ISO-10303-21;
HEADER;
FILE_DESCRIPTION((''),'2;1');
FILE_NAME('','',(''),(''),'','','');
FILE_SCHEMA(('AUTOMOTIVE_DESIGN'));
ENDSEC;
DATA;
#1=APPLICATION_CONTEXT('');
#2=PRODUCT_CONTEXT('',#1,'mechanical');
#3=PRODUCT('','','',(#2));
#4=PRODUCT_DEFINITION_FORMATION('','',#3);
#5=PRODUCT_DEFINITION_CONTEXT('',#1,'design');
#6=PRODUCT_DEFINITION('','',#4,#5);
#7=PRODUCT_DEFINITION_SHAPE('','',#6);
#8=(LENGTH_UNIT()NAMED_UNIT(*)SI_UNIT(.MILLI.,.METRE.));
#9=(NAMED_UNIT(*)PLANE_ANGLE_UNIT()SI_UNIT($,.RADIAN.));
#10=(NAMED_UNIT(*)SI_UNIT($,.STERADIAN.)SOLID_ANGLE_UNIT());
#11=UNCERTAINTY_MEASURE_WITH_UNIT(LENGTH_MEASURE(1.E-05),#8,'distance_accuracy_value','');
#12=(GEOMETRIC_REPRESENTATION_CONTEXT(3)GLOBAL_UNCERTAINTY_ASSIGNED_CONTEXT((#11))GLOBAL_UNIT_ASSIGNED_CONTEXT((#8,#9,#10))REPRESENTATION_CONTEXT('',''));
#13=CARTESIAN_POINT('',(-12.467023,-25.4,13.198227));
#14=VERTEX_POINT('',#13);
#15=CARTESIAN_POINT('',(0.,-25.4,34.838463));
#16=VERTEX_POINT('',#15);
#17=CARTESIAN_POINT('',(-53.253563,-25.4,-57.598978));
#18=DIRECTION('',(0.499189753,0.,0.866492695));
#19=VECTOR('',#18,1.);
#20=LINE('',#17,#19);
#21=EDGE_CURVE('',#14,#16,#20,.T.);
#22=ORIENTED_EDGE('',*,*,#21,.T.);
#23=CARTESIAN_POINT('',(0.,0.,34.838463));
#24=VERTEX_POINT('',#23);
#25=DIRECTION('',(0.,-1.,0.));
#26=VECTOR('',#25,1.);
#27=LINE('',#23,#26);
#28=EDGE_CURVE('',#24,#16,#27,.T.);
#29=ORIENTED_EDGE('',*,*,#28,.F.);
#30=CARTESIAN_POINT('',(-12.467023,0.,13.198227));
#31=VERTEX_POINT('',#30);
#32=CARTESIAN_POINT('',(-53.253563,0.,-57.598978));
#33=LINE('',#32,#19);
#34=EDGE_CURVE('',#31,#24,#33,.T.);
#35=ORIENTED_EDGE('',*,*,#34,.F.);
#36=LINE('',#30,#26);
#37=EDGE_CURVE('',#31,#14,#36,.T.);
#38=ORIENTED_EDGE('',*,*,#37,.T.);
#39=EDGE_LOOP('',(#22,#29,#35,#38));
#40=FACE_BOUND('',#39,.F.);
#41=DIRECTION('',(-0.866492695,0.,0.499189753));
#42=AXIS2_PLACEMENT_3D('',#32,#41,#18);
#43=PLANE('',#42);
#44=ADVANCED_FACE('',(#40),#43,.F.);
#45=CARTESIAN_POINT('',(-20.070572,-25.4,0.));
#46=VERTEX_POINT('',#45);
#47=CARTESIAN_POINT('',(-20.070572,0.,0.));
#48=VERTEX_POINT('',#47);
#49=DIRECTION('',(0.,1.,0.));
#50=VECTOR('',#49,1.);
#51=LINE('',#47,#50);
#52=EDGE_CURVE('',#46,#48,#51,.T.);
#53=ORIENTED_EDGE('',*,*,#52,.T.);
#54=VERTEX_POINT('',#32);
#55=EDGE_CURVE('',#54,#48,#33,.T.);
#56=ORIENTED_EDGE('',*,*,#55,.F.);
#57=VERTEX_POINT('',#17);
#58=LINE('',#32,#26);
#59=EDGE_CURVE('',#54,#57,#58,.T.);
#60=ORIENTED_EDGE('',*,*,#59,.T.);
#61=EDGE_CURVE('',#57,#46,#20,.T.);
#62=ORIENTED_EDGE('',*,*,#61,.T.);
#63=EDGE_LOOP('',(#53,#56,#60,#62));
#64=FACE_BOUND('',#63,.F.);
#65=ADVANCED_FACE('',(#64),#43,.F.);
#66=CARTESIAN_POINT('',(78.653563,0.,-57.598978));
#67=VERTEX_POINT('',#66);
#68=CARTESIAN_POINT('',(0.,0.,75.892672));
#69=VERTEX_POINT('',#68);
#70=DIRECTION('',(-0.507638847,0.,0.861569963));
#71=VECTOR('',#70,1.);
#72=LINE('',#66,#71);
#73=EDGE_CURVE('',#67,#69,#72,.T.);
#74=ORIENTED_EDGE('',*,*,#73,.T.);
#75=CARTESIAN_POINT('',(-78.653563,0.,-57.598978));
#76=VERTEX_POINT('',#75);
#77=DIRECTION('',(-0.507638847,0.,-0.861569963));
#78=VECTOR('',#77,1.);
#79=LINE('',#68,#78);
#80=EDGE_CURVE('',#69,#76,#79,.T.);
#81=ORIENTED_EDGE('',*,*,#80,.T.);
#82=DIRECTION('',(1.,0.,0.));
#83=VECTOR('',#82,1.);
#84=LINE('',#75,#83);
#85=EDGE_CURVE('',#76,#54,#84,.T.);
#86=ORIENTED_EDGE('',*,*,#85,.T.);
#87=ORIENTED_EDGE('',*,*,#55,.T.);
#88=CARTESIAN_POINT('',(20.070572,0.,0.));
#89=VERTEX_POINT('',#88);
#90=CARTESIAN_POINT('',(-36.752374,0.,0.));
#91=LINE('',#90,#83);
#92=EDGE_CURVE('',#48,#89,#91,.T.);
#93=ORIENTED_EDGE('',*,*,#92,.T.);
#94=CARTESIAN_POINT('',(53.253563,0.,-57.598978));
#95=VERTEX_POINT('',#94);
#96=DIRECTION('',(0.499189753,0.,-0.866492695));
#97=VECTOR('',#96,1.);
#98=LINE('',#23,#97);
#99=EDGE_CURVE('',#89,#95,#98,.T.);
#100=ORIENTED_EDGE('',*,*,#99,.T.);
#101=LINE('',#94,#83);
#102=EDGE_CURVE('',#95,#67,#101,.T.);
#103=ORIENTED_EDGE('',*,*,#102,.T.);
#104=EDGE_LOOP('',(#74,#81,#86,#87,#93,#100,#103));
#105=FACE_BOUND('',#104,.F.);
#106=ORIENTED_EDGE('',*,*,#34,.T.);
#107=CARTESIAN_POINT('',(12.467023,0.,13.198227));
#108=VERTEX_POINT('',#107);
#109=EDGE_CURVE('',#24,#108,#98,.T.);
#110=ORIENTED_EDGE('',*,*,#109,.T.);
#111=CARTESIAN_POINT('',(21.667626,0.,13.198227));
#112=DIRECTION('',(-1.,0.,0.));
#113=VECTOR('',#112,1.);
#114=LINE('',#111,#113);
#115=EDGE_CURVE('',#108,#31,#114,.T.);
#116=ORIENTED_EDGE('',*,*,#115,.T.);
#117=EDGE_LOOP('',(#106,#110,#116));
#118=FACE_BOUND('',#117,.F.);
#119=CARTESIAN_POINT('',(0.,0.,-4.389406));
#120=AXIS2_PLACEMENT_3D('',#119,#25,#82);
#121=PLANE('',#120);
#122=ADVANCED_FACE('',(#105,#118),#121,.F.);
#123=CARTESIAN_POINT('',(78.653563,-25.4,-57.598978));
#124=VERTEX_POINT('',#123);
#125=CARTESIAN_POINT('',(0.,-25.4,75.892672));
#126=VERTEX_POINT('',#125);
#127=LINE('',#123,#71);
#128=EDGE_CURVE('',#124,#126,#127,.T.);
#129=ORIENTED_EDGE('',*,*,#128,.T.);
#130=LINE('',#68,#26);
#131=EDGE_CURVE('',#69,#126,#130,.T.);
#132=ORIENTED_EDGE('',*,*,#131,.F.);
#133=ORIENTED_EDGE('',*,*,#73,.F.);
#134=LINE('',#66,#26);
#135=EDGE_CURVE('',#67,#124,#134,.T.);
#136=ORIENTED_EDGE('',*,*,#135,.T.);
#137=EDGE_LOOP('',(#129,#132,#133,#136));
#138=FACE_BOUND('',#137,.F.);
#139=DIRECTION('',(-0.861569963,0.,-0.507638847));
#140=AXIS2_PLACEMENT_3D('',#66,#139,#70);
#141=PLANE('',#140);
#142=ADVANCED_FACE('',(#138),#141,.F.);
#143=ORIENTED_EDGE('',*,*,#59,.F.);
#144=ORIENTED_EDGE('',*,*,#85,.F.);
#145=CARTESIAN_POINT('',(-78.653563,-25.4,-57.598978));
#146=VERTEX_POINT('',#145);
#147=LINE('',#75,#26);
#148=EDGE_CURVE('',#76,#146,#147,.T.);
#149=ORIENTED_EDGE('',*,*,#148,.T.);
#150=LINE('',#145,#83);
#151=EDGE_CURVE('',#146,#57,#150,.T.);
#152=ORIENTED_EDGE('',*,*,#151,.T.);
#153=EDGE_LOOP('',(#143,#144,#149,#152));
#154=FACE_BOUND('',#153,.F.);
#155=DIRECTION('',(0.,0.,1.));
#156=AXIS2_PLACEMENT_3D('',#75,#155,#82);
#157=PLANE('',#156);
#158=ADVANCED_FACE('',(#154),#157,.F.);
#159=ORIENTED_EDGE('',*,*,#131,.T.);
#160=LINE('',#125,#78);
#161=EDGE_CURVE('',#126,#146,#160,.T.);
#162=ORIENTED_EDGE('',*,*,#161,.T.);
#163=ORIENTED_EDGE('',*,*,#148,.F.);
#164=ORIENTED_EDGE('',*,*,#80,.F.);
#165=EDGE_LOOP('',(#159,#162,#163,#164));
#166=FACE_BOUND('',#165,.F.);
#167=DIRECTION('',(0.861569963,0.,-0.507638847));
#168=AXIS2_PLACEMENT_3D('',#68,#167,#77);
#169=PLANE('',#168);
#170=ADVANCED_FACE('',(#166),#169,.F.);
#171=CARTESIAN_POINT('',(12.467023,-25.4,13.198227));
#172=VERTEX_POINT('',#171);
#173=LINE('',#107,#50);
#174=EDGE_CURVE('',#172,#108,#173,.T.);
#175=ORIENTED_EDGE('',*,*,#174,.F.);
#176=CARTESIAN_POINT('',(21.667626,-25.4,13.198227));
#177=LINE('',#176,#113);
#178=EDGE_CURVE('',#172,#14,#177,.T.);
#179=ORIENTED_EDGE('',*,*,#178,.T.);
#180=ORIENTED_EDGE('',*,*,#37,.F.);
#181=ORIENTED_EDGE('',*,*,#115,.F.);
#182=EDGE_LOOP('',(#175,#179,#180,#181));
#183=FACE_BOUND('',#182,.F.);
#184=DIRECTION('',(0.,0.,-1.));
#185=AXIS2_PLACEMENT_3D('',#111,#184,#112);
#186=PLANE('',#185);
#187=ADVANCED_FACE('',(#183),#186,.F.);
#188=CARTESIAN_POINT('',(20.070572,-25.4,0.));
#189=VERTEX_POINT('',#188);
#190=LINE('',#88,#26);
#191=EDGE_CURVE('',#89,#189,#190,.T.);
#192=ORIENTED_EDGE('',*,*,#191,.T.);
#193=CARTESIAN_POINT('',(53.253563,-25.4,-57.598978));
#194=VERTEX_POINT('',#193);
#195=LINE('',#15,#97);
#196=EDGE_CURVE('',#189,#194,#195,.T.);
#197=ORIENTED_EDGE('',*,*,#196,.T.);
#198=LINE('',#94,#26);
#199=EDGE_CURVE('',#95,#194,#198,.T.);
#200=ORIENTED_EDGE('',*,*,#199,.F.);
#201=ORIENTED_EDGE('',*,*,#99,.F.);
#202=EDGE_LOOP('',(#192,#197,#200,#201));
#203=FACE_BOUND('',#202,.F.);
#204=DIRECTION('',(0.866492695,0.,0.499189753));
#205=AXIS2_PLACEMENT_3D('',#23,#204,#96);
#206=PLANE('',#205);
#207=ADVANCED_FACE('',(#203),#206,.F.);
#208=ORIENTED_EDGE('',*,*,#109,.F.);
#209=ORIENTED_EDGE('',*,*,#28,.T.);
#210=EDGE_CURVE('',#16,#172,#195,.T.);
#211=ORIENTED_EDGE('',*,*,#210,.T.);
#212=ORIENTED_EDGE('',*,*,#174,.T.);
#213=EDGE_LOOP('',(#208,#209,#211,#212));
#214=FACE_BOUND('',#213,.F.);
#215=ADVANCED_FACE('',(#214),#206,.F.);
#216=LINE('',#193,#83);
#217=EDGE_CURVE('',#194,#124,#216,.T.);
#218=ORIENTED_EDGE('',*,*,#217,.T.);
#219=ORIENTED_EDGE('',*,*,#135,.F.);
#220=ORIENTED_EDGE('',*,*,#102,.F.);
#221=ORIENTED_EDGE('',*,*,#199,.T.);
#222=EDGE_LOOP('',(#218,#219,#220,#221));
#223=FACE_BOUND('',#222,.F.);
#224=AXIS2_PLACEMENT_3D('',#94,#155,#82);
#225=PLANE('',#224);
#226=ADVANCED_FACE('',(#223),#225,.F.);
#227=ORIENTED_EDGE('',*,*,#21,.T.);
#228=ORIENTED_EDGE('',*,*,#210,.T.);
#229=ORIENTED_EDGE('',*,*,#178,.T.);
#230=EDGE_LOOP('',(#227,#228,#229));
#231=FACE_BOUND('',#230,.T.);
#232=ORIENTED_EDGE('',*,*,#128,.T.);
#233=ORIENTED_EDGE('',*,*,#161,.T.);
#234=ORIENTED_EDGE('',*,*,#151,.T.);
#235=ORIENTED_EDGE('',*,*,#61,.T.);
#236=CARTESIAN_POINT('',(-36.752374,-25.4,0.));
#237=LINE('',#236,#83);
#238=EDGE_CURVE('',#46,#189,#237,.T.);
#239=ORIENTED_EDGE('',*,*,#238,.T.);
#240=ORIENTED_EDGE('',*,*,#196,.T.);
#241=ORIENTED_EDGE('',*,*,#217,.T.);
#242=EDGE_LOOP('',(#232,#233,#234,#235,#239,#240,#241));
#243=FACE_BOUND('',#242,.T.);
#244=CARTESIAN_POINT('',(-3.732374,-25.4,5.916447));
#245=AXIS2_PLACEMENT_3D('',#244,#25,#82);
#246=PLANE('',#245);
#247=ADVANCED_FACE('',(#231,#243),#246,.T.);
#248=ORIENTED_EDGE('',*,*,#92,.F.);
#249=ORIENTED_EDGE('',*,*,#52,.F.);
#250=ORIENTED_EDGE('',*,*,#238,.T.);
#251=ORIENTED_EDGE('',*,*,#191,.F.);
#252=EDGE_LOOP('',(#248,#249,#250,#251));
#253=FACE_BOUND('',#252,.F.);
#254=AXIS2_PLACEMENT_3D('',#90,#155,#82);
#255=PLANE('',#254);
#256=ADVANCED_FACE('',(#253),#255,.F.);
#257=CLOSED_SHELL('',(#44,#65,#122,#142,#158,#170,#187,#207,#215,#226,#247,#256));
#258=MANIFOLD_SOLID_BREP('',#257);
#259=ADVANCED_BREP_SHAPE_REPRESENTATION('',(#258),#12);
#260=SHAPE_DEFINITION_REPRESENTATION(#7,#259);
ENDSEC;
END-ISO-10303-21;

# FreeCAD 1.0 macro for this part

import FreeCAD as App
import Part
import Sketcher
from FreeCAD import Vector
Q = App.Units.Quantity


def add_polygon(sketch, points):
    """Adds a closed chain of lines whose ends are joined by coincident constraints."""
    first, n = sketch.GeometryCount, len(points)
    for a, b in zip(points, points[1:] + points[:1]):
        sketch.addGeometry(Part.LineSegment(App.Vector(*a, 0), App.Vector(*b, 0)), False)
    for i in range(n):
        sketch.addConstraint(Sketcher.Constraint("Coincident", first + i, 2, first + (i + 1) % n, 1))

doc = App.newDocument("Part")
body = doc.addObject("PartDesign::Body", "Body")

sketch1 = body.newObject("Sketcher::SketchObject", "Sketch")
sketch1.AttachmentSupport = (doc.getObject("XZ_Plane"), [""])
sketch1.MapMode = "FlatFace"
add_polygon(sketch1, [(79, -58), (0, 76), (-79, -58), (-53, -58), (0, 35), (53, -58)])
sketch1.addConstraint([
    Sketcher.Constraint("Horizontal", 2),
    Sketcher.Constraint("Horizontal", 5),
    Sketcher.Constraint("Symmetric", 2, 2, 4, 2, -2),
    Sketcher.Constraint("PointOnObject", 0, 2, -2),
    Sketcher.Constraint("PointOnObject", 3, 2, -2),
    Sketcher.Constraint("Equal", 2, 5),
    Sketcher.Constraint("DistanceX", 2, 1, 2, 2, Q("1 in")),
    Sketcher.Constraint("Distance", 0, Q("6.1 in")),
    Sketcher.Constraint("Distance", 3, Q("4.2 in")),
    Sketcher.Constraint("DistanceY", 1, 2, -1, 1, Q("57.598978 mm")),
    Sketcher.Constraint("DistanceY", 1, 2, 0, 2, Q("133.49165 mm")),
])
pad1 = body.newObject("PartDesign::Pad", "Pad")
pad1.Profile = sketch1
pad1.Length = Q("1 in")

sketch2 = body.newObject("Sketcher::SketchObject", "Sketch001")
sketch2.AttachmentSupport = (doc.getObject("XZ_Plane"), [""])
sketch2.MapMode = "FlatFace"
add_polygon(sketch2, [(22, 13), (-29, 13), (-37, 0), (29, 0)])
sketch2.addConstraint([
    Sketcher.Constraint("Horizontal", 0),
    Sketcher.Constraint("Horizontal", 2),
    Sketcher.Constraint("PointOnObject", 1, 2, -1),
    Sketcher.Constraint("Equal", 1, 3),
    Sketcher.Constraint("DistanceX", 0, 2, 0, 1, Q("2 in")),
    Sketcher.Constraint("DistanceX", 2, 1, 2, 2, Q("2.6 in")),
    Sketcher.Constraint("Angle", 1, Q("-120 deg")),
    Sketcher.Constraint("DistanceX", 0, 2, -1, 1, Q("29.132374 mm")),
])
pad2 = body.newObject("PartDesign::Pad", "Pad001")
pad2.Profile = sketch2
pad2.Length = Q("1 in")

doc.recompute()
